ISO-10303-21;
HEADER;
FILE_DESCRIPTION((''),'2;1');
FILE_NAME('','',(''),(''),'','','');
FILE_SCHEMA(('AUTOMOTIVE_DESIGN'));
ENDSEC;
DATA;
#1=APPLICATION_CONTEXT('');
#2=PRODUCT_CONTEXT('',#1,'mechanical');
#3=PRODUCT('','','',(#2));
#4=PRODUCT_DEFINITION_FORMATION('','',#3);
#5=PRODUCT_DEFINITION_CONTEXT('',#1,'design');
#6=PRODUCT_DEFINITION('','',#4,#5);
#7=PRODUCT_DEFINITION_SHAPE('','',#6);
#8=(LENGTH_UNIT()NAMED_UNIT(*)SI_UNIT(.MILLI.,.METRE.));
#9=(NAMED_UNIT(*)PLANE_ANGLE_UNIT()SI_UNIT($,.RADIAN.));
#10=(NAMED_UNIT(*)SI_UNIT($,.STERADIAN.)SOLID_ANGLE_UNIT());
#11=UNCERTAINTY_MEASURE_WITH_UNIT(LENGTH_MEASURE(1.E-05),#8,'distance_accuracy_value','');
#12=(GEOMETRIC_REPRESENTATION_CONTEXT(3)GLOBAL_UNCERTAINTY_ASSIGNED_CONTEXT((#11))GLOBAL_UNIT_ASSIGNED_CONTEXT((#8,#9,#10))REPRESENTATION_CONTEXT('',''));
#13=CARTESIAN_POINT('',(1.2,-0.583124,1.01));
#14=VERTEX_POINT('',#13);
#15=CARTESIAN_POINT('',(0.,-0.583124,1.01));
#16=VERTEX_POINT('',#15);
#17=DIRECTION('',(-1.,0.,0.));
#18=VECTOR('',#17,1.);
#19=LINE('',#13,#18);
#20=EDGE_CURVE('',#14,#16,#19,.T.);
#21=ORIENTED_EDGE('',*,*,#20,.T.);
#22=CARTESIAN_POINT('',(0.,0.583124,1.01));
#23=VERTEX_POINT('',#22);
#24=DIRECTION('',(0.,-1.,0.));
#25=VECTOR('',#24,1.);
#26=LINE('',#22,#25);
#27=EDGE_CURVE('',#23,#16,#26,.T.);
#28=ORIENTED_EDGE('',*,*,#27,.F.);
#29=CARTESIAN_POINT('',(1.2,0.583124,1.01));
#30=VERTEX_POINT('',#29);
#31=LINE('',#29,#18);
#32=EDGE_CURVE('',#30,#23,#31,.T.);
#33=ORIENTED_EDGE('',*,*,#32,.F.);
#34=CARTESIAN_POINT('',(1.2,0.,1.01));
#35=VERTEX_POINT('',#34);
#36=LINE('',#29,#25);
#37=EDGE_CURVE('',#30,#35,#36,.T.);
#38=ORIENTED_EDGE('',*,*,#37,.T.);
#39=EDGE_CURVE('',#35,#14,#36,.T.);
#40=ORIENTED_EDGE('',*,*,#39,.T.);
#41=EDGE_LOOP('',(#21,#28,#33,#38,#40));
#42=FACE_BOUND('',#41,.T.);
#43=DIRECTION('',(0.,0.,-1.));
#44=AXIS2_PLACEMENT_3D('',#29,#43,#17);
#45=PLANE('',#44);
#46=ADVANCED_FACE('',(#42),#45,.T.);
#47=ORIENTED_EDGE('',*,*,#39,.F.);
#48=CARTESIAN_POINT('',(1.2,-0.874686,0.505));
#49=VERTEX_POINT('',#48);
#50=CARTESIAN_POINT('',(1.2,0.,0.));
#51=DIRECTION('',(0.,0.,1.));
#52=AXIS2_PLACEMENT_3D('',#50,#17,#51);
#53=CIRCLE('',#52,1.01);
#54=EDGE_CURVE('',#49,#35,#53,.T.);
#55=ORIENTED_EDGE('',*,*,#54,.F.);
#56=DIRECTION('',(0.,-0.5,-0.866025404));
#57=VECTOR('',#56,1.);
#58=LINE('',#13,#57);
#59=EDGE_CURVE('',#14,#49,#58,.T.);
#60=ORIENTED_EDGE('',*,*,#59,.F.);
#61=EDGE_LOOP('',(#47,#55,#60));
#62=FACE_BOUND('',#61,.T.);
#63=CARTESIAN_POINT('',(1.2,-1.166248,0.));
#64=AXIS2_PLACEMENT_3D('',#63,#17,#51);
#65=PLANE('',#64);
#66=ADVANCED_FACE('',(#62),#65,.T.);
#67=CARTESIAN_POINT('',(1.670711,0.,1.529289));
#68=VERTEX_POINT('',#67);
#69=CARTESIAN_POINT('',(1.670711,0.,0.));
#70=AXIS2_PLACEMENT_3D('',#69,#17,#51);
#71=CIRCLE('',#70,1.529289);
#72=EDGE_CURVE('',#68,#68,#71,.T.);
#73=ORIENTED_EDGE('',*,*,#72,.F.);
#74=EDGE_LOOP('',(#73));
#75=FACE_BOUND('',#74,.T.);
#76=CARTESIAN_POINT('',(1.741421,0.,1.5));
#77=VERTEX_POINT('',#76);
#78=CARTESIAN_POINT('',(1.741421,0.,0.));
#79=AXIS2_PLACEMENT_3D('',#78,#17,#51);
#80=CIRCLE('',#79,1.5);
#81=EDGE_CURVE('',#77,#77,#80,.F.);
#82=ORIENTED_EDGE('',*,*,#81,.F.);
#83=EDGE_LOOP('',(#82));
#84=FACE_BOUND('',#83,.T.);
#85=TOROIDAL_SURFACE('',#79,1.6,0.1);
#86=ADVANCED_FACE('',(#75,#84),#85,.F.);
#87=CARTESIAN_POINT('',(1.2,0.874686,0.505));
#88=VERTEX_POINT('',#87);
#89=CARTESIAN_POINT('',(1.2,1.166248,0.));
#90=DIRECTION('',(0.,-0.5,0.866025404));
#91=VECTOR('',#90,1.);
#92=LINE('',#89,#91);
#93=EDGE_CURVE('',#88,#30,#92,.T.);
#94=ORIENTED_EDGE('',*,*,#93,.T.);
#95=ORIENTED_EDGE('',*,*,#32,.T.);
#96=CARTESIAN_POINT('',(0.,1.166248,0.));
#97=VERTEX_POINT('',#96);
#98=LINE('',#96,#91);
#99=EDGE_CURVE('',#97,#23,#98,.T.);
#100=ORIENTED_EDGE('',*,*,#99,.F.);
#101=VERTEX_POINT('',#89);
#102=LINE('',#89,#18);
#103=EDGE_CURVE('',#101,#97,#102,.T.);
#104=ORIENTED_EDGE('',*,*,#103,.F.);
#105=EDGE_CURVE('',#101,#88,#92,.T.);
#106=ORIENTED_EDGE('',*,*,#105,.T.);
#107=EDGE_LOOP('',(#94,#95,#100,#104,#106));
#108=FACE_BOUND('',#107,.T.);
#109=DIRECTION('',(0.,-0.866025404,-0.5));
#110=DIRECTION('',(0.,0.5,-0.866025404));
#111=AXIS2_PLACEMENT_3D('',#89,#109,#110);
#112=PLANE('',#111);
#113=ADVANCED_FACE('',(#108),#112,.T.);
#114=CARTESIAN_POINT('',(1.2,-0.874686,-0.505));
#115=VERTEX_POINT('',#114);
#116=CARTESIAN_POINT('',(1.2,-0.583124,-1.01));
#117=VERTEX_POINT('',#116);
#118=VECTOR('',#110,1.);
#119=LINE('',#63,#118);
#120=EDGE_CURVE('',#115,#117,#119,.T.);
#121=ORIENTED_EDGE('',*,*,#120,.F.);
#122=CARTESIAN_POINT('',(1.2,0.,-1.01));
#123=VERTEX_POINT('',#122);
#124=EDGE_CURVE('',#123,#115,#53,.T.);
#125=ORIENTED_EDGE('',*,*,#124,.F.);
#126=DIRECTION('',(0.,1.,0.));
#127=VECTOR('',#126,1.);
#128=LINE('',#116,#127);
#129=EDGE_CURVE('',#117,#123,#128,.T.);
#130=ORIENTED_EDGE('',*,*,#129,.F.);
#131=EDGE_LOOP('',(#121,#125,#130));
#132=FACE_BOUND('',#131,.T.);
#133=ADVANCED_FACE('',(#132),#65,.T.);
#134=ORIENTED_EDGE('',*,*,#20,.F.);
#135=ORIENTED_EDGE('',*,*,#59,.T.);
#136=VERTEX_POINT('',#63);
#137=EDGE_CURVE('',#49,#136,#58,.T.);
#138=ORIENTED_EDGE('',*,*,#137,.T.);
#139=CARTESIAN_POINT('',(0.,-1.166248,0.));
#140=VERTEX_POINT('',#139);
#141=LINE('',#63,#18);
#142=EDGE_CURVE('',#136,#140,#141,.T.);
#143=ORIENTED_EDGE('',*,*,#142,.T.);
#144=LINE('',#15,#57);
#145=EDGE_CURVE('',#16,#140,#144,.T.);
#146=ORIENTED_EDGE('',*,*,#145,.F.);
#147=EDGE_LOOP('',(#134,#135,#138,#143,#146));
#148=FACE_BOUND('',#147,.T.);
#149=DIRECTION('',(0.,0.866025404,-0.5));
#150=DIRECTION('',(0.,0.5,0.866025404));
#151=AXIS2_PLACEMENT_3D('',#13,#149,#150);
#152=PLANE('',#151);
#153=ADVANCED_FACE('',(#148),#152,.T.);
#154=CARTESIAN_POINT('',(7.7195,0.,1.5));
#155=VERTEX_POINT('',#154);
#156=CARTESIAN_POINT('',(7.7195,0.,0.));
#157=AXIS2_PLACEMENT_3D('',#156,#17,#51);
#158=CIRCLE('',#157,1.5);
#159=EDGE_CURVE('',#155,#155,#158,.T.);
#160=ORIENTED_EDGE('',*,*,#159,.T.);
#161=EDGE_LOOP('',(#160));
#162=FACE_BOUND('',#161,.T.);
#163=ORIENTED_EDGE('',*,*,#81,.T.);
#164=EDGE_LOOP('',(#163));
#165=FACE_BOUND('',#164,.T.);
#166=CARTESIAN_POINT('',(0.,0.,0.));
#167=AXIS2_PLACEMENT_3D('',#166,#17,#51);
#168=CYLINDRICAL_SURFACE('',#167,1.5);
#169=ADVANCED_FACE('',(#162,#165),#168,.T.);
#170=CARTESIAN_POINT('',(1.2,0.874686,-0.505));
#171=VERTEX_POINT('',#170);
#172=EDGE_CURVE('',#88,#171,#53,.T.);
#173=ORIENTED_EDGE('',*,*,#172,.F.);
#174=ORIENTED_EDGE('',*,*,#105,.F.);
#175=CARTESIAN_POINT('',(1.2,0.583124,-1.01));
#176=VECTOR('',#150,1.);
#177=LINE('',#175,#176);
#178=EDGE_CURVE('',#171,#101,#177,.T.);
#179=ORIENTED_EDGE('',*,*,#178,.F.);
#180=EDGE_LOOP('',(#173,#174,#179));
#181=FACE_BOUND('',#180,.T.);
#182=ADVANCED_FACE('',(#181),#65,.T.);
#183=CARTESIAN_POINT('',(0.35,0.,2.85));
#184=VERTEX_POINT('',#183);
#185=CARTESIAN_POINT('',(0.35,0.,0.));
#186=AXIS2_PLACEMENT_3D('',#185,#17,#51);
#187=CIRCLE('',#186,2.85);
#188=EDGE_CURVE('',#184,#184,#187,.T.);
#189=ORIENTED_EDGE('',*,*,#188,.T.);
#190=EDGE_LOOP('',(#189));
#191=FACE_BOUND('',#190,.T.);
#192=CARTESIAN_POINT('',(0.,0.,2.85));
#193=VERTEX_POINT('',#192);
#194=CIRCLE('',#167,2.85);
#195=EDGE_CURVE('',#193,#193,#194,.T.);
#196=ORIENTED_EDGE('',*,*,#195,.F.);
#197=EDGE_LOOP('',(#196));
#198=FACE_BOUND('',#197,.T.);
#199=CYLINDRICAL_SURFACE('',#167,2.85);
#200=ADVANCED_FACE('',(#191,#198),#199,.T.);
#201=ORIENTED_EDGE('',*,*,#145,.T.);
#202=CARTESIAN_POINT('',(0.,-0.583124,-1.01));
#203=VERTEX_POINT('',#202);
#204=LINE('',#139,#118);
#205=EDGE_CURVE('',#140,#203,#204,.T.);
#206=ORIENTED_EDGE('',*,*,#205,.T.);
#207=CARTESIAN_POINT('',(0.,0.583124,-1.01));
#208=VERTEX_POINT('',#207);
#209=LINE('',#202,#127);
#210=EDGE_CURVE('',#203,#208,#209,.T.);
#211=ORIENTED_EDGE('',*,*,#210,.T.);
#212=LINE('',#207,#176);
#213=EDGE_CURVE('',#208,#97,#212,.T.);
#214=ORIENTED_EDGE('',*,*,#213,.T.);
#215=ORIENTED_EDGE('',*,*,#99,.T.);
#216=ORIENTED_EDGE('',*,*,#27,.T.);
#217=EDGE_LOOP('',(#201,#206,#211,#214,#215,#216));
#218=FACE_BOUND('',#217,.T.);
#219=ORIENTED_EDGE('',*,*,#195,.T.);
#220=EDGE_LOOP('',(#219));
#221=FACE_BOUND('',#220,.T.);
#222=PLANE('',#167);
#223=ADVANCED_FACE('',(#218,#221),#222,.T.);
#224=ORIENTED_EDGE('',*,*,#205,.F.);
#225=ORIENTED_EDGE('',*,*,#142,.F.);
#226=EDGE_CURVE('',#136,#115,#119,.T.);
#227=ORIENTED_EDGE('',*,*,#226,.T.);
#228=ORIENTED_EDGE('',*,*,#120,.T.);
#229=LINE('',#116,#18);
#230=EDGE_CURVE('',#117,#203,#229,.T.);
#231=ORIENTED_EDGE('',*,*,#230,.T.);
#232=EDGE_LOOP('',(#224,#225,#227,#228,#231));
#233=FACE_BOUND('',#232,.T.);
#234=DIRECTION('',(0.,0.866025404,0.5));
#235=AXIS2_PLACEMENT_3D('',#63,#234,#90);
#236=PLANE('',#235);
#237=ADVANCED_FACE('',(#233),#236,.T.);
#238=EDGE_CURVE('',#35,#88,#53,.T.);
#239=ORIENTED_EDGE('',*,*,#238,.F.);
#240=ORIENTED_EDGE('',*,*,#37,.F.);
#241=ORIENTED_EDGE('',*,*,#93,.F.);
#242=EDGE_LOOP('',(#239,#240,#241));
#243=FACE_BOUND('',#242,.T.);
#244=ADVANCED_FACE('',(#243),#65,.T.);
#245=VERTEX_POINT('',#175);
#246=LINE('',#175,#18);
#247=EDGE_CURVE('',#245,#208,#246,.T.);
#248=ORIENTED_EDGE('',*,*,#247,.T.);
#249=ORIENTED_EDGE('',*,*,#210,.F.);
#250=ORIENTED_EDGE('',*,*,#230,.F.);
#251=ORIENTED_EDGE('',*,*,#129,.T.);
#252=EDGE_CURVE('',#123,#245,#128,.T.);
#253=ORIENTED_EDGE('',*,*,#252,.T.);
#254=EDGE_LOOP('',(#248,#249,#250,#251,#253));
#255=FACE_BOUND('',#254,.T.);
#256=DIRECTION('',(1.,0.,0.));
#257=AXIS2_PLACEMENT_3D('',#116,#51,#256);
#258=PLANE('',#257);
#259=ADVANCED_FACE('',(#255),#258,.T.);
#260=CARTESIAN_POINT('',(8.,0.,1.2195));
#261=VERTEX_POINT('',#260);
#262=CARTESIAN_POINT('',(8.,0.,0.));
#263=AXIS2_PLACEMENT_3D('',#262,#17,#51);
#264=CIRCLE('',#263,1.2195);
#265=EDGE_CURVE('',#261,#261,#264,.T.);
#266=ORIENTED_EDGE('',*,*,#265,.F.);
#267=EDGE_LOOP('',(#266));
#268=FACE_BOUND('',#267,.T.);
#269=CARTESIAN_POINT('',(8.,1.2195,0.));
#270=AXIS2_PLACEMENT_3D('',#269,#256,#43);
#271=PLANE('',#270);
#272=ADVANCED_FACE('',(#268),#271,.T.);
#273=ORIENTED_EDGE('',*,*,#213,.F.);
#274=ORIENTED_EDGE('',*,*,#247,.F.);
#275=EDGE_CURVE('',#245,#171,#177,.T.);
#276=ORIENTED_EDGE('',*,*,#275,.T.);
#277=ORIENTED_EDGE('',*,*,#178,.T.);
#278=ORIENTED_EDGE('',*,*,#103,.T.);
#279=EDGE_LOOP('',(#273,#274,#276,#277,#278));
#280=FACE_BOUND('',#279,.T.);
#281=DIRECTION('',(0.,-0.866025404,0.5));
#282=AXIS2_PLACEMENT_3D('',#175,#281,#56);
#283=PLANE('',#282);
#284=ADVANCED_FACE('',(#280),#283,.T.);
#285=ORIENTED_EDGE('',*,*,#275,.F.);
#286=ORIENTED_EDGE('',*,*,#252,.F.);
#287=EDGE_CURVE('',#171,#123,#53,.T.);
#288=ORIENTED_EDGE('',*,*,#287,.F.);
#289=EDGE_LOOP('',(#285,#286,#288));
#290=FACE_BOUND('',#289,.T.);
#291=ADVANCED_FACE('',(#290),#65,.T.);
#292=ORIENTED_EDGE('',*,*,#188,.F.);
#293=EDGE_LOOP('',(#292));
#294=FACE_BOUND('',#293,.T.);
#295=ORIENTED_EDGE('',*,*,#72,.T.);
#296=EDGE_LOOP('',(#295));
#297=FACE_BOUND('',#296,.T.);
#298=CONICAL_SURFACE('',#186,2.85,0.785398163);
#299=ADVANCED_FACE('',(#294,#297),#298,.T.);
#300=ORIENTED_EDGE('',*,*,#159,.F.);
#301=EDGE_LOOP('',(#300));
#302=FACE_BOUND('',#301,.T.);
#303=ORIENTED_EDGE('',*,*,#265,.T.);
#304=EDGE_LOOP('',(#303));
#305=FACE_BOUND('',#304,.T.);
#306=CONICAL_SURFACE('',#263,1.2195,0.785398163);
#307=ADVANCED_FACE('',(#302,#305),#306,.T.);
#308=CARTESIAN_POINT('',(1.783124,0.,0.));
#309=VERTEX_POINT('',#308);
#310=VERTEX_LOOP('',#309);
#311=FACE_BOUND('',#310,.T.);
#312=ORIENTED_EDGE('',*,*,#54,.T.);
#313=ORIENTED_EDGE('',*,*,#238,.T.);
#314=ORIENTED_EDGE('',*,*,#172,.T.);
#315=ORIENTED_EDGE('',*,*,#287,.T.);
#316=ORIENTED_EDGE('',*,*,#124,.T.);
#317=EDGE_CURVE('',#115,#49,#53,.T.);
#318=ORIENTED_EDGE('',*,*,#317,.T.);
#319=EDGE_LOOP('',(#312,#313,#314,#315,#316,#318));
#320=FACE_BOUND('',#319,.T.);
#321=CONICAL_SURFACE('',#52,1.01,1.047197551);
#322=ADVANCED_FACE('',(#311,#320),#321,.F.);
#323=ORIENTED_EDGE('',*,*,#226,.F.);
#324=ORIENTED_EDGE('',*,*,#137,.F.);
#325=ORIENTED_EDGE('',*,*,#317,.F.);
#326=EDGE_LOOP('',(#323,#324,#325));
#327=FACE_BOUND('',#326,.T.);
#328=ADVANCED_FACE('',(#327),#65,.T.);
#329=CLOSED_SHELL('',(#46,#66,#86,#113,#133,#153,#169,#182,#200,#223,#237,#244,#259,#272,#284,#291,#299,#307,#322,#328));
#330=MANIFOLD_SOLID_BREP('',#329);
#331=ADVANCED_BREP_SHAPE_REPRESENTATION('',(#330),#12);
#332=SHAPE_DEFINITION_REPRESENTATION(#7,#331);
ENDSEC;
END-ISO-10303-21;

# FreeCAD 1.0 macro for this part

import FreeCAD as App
import Part
import Sketcher
Q = App.Units.Quantity


def edges_at(feature, points):
    """Names of the edges that pass closest to the given points."""
    edges = feature.Shape.Edges
    near = lambda p: min(range(len(edges)), key=lambda i: edges[i].distToShape(Part.Vertex(*p))[0])
    return sorted({f"Edge{near(p) + 1}" for p in points})


def add_polygon(sketch, points):
    """Adds a closed chain of lines whose ends are joined by coincident constraints."""
    first, n = sketch.GeometryCount, len(points)
    for a, b in zip(points, points[1:] + points[:1]):
        sketch.addGeometry(Part.LineSegment(App.Vector(*a, 0), App.Vector(*b, 0)), False)
    for i in range(n):
        sketch.addConstraint(Sketcher.Constraint("Coincident", first + i, 2, first + (i + 1) % n, 1))

doc = App.newDocument("Part")
params = doc.addObject("Spreadsheet::Sheet", "Params")
for row, (alias, value) in enumerate([
    ("sketch1_width", "8 mm"),
    ("sketch1_width2", "0.35 mm"),
    ("sketch1_height", "2.85 mm"),
    ("revolution_angle", "360 deg"),
    ("fillet_radius", "0.1 mm"),
    ("sketch2_width", "1.2 mm"),
    ("sketch2_height", "1.01 mm"),
    ("groove_angle", "360 deg"),
    ("pocket1_length", "1.2 mm"),
], start=1):
    params.set(f"A{row}", alias)
    params.set(f"B{row}", "=" + value)
    params.setAlias(f"B{row}", alias)

body = doc.addObject("PartDesign::Body", "Body")

# Sketch on XY plane
sketch1 = body.newObject("Sketcher::SketchObject", "Sketch")
sketch1.AttachmentSupport = (doc.getObject("XY_Plane"), [""])
sketch1.MapMode = "FlatFace"
add_polygon(sketch1, [(0, 2.85), (0, 0), (8, 0), (8, 1.22), (7.72, 1.5), (1.7, 1.5), (0.35, 2.85)])  # lines 0-6
sketch1.addConstraint(Sketcher.Constraint("Vertical", 0))
sketch1.addConstraint(Sketcher.Constraint("Horizontal", 1))
sketch1.addConstraint(Sketcher.Constraint("Vertical", 2))
sketch1.addConstraint(Sketcher.Constraint("Horizontal", 4))
sketch1.addConstraint(Sketcher.Constraint("Horizontal", 6))
sketch1.addConstraint(Sketcher.Constraint("Coincident", 0, 2, -1, 1))
sketch1.addConstraint(Sketcher.Constraint("Parallel", 3, 5))
sketch1.addConstraint(Sketcher.Constraint("DistanceX", 1, 1, 1, 2, Q("8 mm")))
sketch1.addConstraint(Sketcher.Constraint("Angle", 3, Q("135 deg")))
sketch1.addConstraint(Sketcher.Constraint("DistanceX", 6, 2, 6, 1, Q("0.35 mm")))
sketch1.addConstraint(Sketcher.Constraint("DistanceY", 0, 2, 0, 1, Q("2.85 mm")))
sketch1.addConstraint(Sketcher.Constraint("DistanceY", -1, 1, 3, 2, Q("1.5 mm")))
sketch1.addConstraint(Sketcher.Constraint("DistanceX", 4, 2, 4, 1, Q("6.0195 mm")))
sketch1.setExpression("Constraints[14]", "Params.sketch1_width")
sketch1.setExpression("Constraints[16]", "Params.sketch1_width2")
sketch1.setExpression("Constraints[17]", "Params.sketch1_height")
revolution = body.newObject("PartDesign::Revolution", "Revolution")
revolution.Profile = sketch1
revolution.ReferenceAxis = (sketch1, ["H_Axis"])
revolution.setExpression("Angle", "Params.revolution_angle")
doc.recompute()

fillet = body.newObject("PartDesign::Fillet", "Fillet")
fillet.Base = (revolution, edges_at(revolution, [(1.7, -1.5, 0)]))
fillet.setExpression("Radius", "Params.fillet_radius")

# Sketch on XY plane
sketch2 = body.newObject("Sketcher::SketchObject", "Sketch001")
sketch2.AttachmentSupport = (doc.getObject("XY_Plane"), [""])
sketch2.MapMode = "FlatFace"
add_polygon(sketch2, [(1.2, 1), (0, 1), (0, 0), (1.8, 0)])  # lines 0-3
sketch2.addConstraint(Sketcher.Constraint("Horizontal", 0))
sketch2.addConstraint(Sketcher.Constraint("Vertical", 1))
sketch2.addConstraint(Sketcher.Constraint("Horizontal", 2))
sketch2.addConstraint(Sketcher.Constraint("Coincident", 1, 2, -1, 1))
sketch2.addConstraint(Sketcher.Constraint("Angle", 3, Q("120 deg")))
sketch2.addConstraint(Sketcher.Constraint("DistanceX", 0, 2, 0, 1, Q("1.2 mm")))
sketch2.addConstraint(Sketcher.Constraint("DistanceY", 1, 2, 1, 1, Q("1.01 mm")))
sketch2.setExpression("Constraints[9]", "Params.sketch2_width")
sketch2.setExpression("Constraints[10]", "Params.sketch2_height")
groove = body.newObject("PartDesign::Groove", "Groove")
groove.Profile = sketch2
groove.ReferenceAxis = (sketch2, ["H_Axis"])
groove.setExpression("Angle", "Params.groove_angle")

# Sketch on YZ plane
sketch3 = body.newObject("Sketcher::SketchObject", "Sketch002")
sketch3.AttachmentSupport = (doc.getObject("YZ_Plane"), [""])
sketch3.MapMode = "FlatFace"
add_polygon(sketch3, [(0.6, -1), (-0.6, -1), (-1.2, 0), (-0.6, 1), (0.6, 1), (1.2, 0)])  # lines 0-5
sketch3.addConstraint(Sketcher.Constraint("Horizontal", 0))
sketch3.addConstraint(Sketcher.Constraint("Horizontal", 3))
sketch3.addConstraint(Sketcher.Constraint("Symmetric", 0, 2, 3, 2, -1, 1))
sketch3.addConstraint(Sketcher.Constraint("Symmetric", 1, 2, 4, 2, -1, 1))
sketch3.addConstraint(Sketcher.Constraint("PointOnObject", 1, 2, -1))
sketch3.addConstraint(Sketcher.Constraint("Parallel", 2, 5))
sketch3.addConstraint(Sketcher.Constraint("Vertical", 0, 2, 2, 2))
sketch3.addConstraint(Sketcher.Constraint("Angle", 1, Q("120 deg")))
sketch3.addConstraint(Sketcher.Constraint("DistanceY", 0, 2, -1, 1, Q("1.01 mm")))
sketch3.addConstraint(Sketcher.Constraint("DistanceX", 0, 2, 0, 1, Q("1.166248 mm")))
pocket1 = body.newObject("PartDesign::Pocket", "Pocket")
pocket1.Profile = sketch3
pocket1.setExpression("Length", "Params.pocket1_length")
pocket1.Reversed = True

doc.recompute()
